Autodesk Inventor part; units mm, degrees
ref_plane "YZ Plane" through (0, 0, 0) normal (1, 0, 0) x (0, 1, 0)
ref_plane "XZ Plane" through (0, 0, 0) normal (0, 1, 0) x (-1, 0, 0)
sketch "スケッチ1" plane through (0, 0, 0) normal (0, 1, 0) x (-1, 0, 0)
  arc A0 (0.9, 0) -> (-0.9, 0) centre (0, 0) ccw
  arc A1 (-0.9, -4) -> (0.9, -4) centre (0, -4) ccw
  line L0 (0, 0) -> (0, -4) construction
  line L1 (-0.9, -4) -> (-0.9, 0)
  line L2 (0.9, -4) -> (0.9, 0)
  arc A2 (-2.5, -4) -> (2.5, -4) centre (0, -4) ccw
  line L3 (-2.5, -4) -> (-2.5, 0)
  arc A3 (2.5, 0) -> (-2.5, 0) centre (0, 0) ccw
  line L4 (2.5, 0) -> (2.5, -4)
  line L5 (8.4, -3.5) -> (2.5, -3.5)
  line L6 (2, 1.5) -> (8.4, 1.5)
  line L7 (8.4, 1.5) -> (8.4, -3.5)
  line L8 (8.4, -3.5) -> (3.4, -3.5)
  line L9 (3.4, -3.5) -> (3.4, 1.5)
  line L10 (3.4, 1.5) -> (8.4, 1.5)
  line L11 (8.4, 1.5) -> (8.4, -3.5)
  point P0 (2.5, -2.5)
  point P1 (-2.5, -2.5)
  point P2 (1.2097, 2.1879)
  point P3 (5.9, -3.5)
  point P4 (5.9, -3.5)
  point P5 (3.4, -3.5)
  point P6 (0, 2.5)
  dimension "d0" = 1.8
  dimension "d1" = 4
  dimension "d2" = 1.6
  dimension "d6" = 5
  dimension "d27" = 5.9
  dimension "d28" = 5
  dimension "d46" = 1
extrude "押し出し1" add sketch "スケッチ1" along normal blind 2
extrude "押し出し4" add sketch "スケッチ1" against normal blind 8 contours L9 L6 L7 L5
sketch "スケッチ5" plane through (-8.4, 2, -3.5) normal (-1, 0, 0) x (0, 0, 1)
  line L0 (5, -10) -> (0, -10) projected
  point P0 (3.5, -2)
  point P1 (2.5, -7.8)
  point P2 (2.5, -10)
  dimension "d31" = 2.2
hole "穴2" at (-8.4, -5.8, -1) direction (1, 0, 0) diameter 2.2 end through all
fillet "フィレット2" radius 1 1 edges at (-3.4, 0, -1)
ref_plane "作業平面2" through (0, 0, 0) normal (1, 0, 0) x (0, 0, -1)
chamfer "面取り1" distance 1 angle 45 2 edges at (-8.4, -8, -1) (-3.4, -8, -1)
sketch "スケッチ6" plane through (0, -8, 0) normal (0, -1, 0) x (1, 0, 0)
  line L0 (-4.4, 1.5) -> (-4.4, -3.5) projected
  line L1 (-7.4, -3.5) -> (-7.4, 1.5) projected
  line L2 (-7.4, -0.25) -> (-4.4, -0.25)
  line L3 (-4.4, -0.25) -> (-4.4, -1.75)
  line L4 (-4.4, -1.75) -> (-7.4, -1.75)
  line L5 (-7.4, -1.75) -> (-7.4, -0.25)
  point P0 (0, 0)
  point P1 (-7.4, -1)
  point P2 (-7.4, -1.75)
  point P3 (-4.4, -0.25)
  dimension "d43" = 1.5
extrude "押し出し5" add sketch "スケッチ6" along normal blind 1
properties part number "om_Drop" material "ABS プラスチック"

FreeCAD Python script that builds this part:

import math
import FreeCAD as App
import Part
import Sketcher
from FreeCAD import Vector
Q = App.Units.Quantity


def edges_at(feature, points):
    """Names of the edges that pass closest to the given points."""
    edges = feature.Shape.Edges
    near = lambda p: min(range(len(edges)), key=lambda i: edges[i].distToShape(Part.Vertex(*p))[0])
    return sorted({f"Edge{near(p) + 1}" for p in points})


def add_polygon(sketch, points):
    """Adds a closed chain of lines whose ends are joined by coincident constraints."""
    first, n = sketch.GeometryCount, len(points)
    for a, b in zip(points, points[1:] + points[:1]):
        sketch.addGeometry(Part.LineSegment(App.Vector(*a, 0), App.Vector(*b, 0)), False)
    for i in range(n):
        sketch.addConstraint(Sketcher.Constraint("Coincident", first + i, 2, first + (i + 1) % n, 1))

doc = App.newDocument("Part")
params = doc.addObject("Spreadsheet::Sheet", "Params")
for row, (alias, value) in enumerate([
    ("sketch1_radius", "2.5 mm"),
    ("sketch1_radius2", "0.9 mm"),
    ("sketch1_height", "4 mm"),
    ("sketch1_height2", "5 mm"),
    ("sketch1_width", "5.9 mm"),
    ("pad1_length", "2 mm"),
    ("sketch2_width", "5 mm"),
    ("pad2_length", "8 mm"),
    ("sketch3_diameter", "2.2 mm"),
    ("hole_diameter", "2.2 mm"),
    ("fillet_radius", "1 mm"),
    ("chamfer_size", "1 mm"),
    ("sketch4_height", "1.5 mm"),
    ("sketch4_width", "3 mm"),
    ("pad3_length", "1 mm"),
], start=1):
    params.set(f"A{row}", alias)
    params.set(f"B{row}", "=" + value)
    params.setAlias(f"B{row}", alias)

body = doc.addObject("PartDesign::Body", "Body")

sketch1 = body.newObject("Sketcher::SketchObject", "Sketch")
sketch1.AttachmentSupport = (doc.getObject("XZ_Plane"), [""])
sketch1.MapMode = "FlatFace"
sketch1.addGeometry([
    Part.LineSegment(Vector(2.5, 0, 0), Vector(2.5, -4, 0)),
    Part.ArcOfCircle(Part.Circle(Vector(0, -4, 0), Vector(0, 0, 1), 2.5), math.radians(180), math.radians(360)),
    Part.LineSegment(Vector(-2.5, -4, 0), Vector(-2.5, -3.5, 0)),
    Part.LineSegment(Vector(-2.5, -3.5, 0), Vector(-8.4, -3.5, 0)),
    Part.LineSegment(Vector(-8.4, -3.5, 0), Vector(-8.4, 1.5, 0)),
    Part.LineSegment(Vector(-8.4, 1.5, 0), Vector(-2, 1.5, 0)),
    Part.ArcOfCircle(Part.Circle(Vector(0, 0, 0), Vector(0, 0, 1), 2.5), math.radians(0), math.radians(143)),
    Part.ArcOfCircle(Part.Circle(Vector(0, 0, 0), Vector(0, 0, 1), 0.9), math.radians(0), math.radians(180)),
    Part.LineSegment(Vector(-0.9, 0, 0), Vector(-0.9, -4, 0)),
    Part.ArcOfCircle(Part.Circle(Vector(0, -4, 0), Vector(0, 0, 1), 0.9), math.radians(180), math.radians(360)),
    Part.LineSegment(Vector(0.9, -4, 0), Vector(0.9, 0, 0)),
], False)
sketch1.addConstraint([
    Sketcher.Constraint("Tangent", 0, 2, 1, 2),
    Sketcher.Constraint("Tangent", 1, 1, 2, 1),
    Sketcher.Constraint("Coincident", 2, 2, 3, 1),
    Sketcher.Constraint("Coincident", 3, 2, 4, 1),
    Sketcher.Constraint("Coincident", 4, 2, 5, 1),
    Sketcher.Constraint("Coincident", 5, 2, 6, 2),
    Sketcher.Constraint("Tangent", 6, 1, 0, 1),
    Sketcher.Constraint("Tangent", 7, 2, 8, 1),
    Sketcher.Constraint("Tangent", 8, 2, 9, 1),
    Sketcher.Constraint("Tangent", 9, 2, 10, 1),
    Sketcher.Constraint("Tangent", 10, 2, 7, 1),
    Sketcher.Constraint("Vertical", 0),
    Sketcher.Constraint("Vertical", 2),
    Sketcher.Constraint("Horizontal", 3),
    Sketcher.Constraint("Vertical", 4),
    Sketcher.Constraint("Horizontal", 5),
    Sketcher.Constraint("Vertical", 8),
    Sketcher.Constraint("Vertical", 10),
    Sketcher.Constraint("Coincident", 6, 3, -1, 1),
    Sketcher.Constraint("Coincident", 7, 3, -1, 1),
    Sketcher.Constraint("Coincident", 9, 3, 1, 3),
    Sketcher.Constraint("Radius", 1, Q("2.5 mm")),
    Sketcher.Constraint("Radius", 7, Q("0.9 mm")),
    Sketcher.Constraint("DistanceY", 0, 2, 0, 1, Q("4 mm")),
    Sketcher.Constraint("DistanceY", 4, 1, 4, 2, Q("5 mm")),
    Sketcher.Constraint("DistanceX", 3, 2, 3, 1, Q("5.9 mm")),
    Sketcher.Constraint("DistanceX", 5, 1, 5, 2, Q("6.4 mm")),
])
sketch1.setExpression("Constraints[21]", "Params.sketch1_radius")
sketch1.setExpression("Constraints[22]", "Params.sketch1_radius2")
sketch1.setExpression("Constraints[23]", "Params.sketch1_height")
sketch1.setExpression("Constraints[24]", "Params.sketch1_height2")
sketch1.setExpression("Constraints[25]", "Params.sketch1_width")
pad1 = body.newObject("PartDesign::Pad", "Pad")
pad1.Profile = sketch1
pad1.setExpression("Length", "Params.pad1_length")
pad1.Reversed = True

sketch2 = body.newObject("Sketcher::SketchObject", "Sketch001")
sketch2.AttachmentSupport = (doc.getObject("XZ_Plane"), [""])
sketch2.MapMode = "FlatFace"
add_polygon(sketch2, [(-3, 2), (-3, -4), (-8, -4), (-8, 2)])
sketch2.addConstraint([
    Sketcher.Constraint("Vertical", 0),
    Sketcher.Constraint("Horizontal", 1),
    Sketcher.Constraint("Vertical", 2),
    Sketcher.Constraint("Horizontal", 3),
    Sketcher.Constraint("Equal", 3, 0),
    Sketcher.Constraint("DistanceX", 1, 2, 1, 1, Q("5 mm")),
    Sketcher.Constraint("DistanceX", 0, 2, -1, 1, Q("3.4 mm")),
    Sketcher.Constraint("DistanceY", 0, 2, -1, 1, Q("3.5 mm")),
])
sketch2.setExpression("Constraints[9]", "Params.sketch2_width")
pad2 = body.newObject("PartDesign::Pad", "Pad001")
pad2.Profile = sketch2
pad2.setExpression("Length", "Params.pad2_length")

sketch3 = body.newObject("Sketcher::SketchObject", "Sketch002")
sketch3.AttachmentSupport = (doc.getObject("YZ_Plane"), [""])
sketch3.MapMode = "FlatFace"
sketch3.AttachmentOffset = App.Placement(Vector(0, 0, -8.4), App.Rotation())
sketch3.addGeometry(Part.Circle(Vector(-5.8, -1, 0), Vector(0, 0, 1), 1.1), False)
sketch3.addConstraint([
    Sketcher.Constraint("Diameter", 0, Q("2.2 mm")),
    Sketcher.Constraint("DistanceY", 0, 3, -1, 1, Q("1 mm")),
    Sketcher.Constraint("DistanceX", 0, 3, -1, 1, Q("5.8 mm")),
])
sketch3.setExpression("Constraints[0]", "Params.sketch3_diameter")
doc.recompute()
hole = body.newObject("PartDesign::Hole", "Hole")
hole.Profile = sketch3
hole.ThreadType = "None"
hole.setExpression("Diameter", "Params.hole_diameter")
hole.DepthType = "ThroughAll"
hole.Reversed = True
doc.recompute()

fillet = body.newObject("PartDesign::Fillet", "Fillet")
fillet.Base = (hole, edges_at(hole, [(-3.4, 0, -1)]))
fillet.setExpression("Radius", "Params.fillet_radius")
doc.recompute()

chamfer = body.newObject("PartDesign::Chamfer", "Chamfer")
chamfer.Base = (fillet, edges_at(fillet, [(-8.4, -8, -1), (-3.4, -8, -1)]))
chamfer.setExpression("Size", "Params.chamfer_size")

sketch4 = body.newObject("Sketcher::SketchObject", "Sketch003")
sketch4.AttachmentSupport = (doc.getObject("XZ_Plane"), [""])
sketch4.MapMode = "FlatFace"
sketch4.AttachmentOffset = App.Placement(Vector(0, 0, 8), App.Rotation())
add_polygon(sketch4, [(-4.4, -1.8), (-4.4, -0.2), (-7.4, -0.2), (-7.4, -1.8)])
sketch4.addConstraint([
    Sketcher.Constraint("Vertical", 0),
    Sketcher.Constraint("Horizontal", 1),
    Sketcher.Constraint("Vertical", 2),
    Sketcher.Constraint("Horizontal", 3),
    Sketcher.Constraint("DistanceY", 0, 1, 0, 2, Q("1.5 mm")),
    Sketcher.Constraint("DistanceX", 1, 2, 1, 1, Q("3 mm")),
    Sketcher.Constraint("DistanceX", 0, 2, -1, 1, Q("4.4 mm")),
    Sketcher.Constraint("DistanceY", 0, 2, -1, 1, Q("0.25 mm")),
])
sketch4.setExpression("Constraints[8]", "Params.sketch4_height")
sketch4.setExpression("Constraints[9]", "Params.sketch4_width")
pad3 = body.newObject("PartDesign::Pad", "Pad002")
pad3.Profile = sketch4
pad3.setExpression("Length", "Params.pad3_length")

doc.recompute()
